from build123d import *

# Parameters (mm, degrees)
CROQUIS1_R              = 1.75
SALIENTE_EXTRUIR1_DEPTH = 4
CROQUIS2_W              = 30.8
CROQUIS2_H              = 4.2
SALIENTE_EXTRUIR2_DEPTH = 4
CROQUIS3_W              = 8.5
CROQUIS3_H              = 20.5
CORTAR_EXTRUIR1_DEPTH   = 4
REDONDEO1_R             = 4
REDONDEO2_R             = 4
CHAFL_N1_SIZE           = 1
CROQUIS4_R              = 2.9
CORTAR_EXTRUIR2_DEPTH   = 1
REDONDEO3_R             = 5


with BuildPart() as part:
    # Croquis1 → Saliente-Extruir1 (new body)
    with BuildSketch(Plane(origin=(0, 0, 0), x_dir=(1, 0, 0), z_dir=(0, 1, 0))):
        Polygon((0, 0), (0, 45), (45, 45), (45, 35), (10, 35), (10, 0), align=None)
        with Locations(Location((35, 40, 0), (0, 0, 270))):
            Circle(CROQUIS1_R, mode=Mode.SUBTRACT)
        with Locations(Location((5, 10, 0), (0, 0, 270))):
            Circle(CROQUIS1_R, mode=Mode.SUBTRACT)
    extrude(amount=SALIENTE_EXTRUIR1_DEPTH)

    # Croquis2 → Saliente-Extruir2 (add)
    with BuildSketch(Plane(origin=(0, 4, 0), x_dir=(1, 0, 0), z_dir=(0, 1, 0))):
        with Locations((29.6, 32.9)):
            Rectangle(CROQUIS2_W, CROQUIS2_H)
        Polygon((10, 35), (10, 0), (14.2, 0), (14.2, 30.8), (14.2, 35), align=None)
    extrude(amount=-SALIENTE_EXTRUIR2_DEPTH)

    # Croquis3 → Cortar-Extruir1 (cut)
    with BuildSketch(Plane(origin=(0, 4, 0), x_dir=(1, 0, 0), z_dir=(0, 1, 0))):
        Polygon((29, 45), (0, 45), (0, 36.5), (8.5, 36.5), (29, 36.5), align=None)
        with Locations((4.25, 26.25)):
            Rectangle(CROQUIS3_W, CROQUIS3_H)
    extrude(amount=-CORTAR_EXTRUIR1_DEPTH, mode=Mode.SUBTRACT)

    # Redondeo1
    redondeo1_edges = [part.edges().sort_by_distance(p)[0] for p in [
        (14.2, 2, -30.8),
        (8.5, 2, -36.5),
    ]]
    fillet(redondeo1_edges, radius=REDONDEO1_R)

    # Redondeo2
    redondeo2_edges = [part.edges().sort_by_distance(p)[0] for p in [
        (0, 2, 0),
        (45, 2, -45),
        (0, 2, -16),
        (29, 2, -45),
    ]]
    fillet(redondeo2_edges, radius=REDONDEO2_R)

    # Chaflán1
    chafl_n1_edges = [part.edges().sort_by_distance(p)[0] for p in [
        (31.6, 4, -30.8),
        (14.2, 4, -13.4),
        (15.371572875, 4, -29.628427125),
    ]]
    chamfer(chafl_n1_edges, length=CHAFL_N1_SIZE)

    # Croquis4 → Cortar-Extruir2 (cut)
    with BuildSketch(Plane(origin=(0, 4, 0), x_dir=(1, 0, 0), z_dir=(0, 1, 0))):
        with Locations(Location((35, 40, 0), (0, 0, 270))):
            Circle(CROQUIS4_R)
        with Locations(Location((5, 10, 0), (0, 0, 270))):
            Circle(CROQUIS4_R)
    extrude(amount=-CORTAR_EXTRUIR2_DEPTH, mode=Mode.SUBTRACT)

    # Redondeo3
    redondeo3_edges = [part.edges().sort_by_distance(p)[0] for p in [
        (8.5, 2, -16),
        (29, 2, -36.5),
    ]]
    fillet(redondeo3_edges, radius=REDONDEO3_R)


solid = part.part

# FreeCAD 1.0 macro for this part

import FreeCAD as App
import Part
import Sketcher
from FreeCAD import Vector


def edges_at(feature, points):
    """Names of the edges that pass closest to the given points."""
    edges = feature.Shape.Edges
    near = lambda p: min(range(len(edges)), key=lambda i: edges[i].distToShape(Part.Vertex(*p))[0])
    return sorted({f"Edge{near(p) + 1}" for p in points})


def add_polygon(sketch, points):
    """Adds a closed chain of lines whose ends are joined by coincident constraints."""
    first, n = sketch.GeometryCount, len(points)
    for a, b in zip(points, points[1:] + points[:1]):
        sketch.addGeometry(Part.LineSegment(App.Vector(*a, 0), App.Vector(*b, 0)), False)
    for i in range(n):
        sketch.addConstraint(Sketcher.Constraint("Coincident", first + i, 2, first + (i + 1) % n, 1))

doc = App.newDocument("Part")
params = doc.addObject("Spreadsheet::Sheet", "Params")
for row, (alias, value) in enumerate([
    ("sketch1_diameter", "3.5 mm"),
    ("sketch1_width", "10 mm"),
    ("sketch1_width2", "35 mm"),
    ("pad1_length", "4 mm"),
    ("sketch2_width", "35 mm"),
    ("sketch2_width2", "30.8 mm"),
    ("pad2_length", "4 mm"),
    ("sketch3_width", "29 mm"),
    ("sketch3_width2", "8.5 mm"),
    ("pocket1_length", "4 mm"),
    ("fillet_radius", "4 mm"),
    ("fillet2_radius", "4 mm"),
    ("chamfer_size", "1 mm"),
    ("sketch4_diameter", "5.8 mm"),
    ("pocket2_length", "1 mm"),
    ("fillet3_radius", "5 mm"),
], start=1):
    params.set(f"A{row}", alias)
    params.set(f"B{row}", "=" + value)
    params.setAlias(f"B{row}", alias)

body = doc.addObject("PartDesign::Body", "Body")

# Sketch on XZ plane
sketch1 = body.newObject("Sketcher::SketchObject", "Sketch")
sketch1.AttachmentSupport = (doc.getObject("XZ_Plane"), [""])
sketch1.MapMode = "FlatFace"
add_polygon(sketch1, [(0, -45), (0, 0), (10, 0), (10, -35), (45, -35), (45, -45)])  # lines 0-5
sketch1.addGeometry(Part.Circle(Vector(5, -10, 0), Vector(0, 0, 1), 1.8), False)  # 6
sketch1.addGeometry(Part.Circle(Vector(35, -40, 0), Vector(0, 0, 1), 1.8), False)  # 7
sketch1.addConstraint(Sketcher.Constraint("Vertical", 0))
sketch1.addConstraint(Sketcher.Constraint("Horizontal", 1))
sketch1.addConstraint(Sketcher.Constraint("Vertical", 2))
sketch1.addConstraint(Sketcher.Constraint("Horizontal", 3))
sketch1.addConstraint(Sketcher.Constraint("Vertical", 4))
sketch1.addConstraint(Sketcher.Constraint("Horizontal", 5))
sketch1.addConstraint(Sketcher.Constraint("Coincident", 0, 2, -1, 1))
sketch1.addConstraint(Sketcher.Constraint("Equal", 6, 7))
sketch1.addConstraint(Sketcher.Constraint("Equal", 5, 0))
sketch1.addConstraint(Sketcher.Constraint("Equal", 3, 2))
sketch1.addConstraint(Sketcher.Constraint("Diameter", 6, 3.5))
sketch1.addConstraint(Sketcher.Constraint("DistanceX", 1, 1, 1, 2, 10.0))
sketch1.addConstraint(Sketcher.Constraint("DistanceX", 3, 1, 3, 2, 35.0))
sketch1.addConstraint(Sketcher.Constraint("DistanceX", -1, 1, 6, 3, 5.0))
sketch1.addConstraint(Sketcher.Constraint("DistanceY", 6, 3, -1, 1, 10.0))
sketch1.addConstraint(Sketcher.Constraint("DistanceX", -1, 1, 7, 3, 35.0))
sketch1.addConstraint(Sketcher.Constraint("DistanceY", 7, 3, -1, 1, 40.0))
sketch1.setExpression("Constraints[16]", "Params.sketch1_diameter")
sketch1.setExpression("Constraints[17]", "Params.sketch1_width")
sketch1.setExpression("Constraints[18]", "Params.sketch1_width2")
pad1 = body.newObject("PartDesign::Pad", "Pad")
pad1.Profile = sketch1
pad1.setExpression("Length", "Params.pad1_length")
pad1.Reversed = True

# Sketch on XZ plane
sketch2 = body.newObject("Sketcher::SketchObject", "Sketch001")
sketch2.AttachmentSupport = (doc.getObject("XZ_Plane"), [""])
sketch2.MapMode = "FlatFace"
sketch2.AttachmentOffset = App.Placement(Vector(0, 0, -4), App.Rotation())
add_polygon(sketch2, [(14.2, -30.8), (45, -30.8), (45, -35), (10, -35), (10, 0), (14.2, 0)])  # lines 0-5
sketch2.addConstraint(Sketcher.Constraint("Horizontal", 0))
sketch2.addConstraint(Sketcher.Constraint("Vertical", 1))
sketch2.addConstraint(Sketcher.Constraint("Horizontal", 2))
sketch2.addConstraint(Sketcher.Constraint("Vertical", 3))
sketch2.addConstraint(Sketcher.Constraint("Horizontal", 4))
sketch2.addConstraint(Sketcher.Constraint("Vertical", 5))
sketch2.addConstraint(Sketcher.Constraint("PointOnObject", 3, 2, -1))
sketch2.addConstraint(Sketcher.Constraint("Equal", 4, 1))
sketch2.addConstraint(Sketcher.Constraint("Equal", 2, 3))
sketch2.addConstraint(Sketcher.Constraint("DistanceX", 2, 2, 2, 1, 35.0))
sketch2.addConstraint(Sketcher.Constraint("DistanceX", 0, 1, 0, 2, 30.8))
sketch2.addConstraint(Sketcher.Constraint("DistanceX", -1, 1, 0, 2, 45.0))
sketch2.setExpression("Constraints[15]", "Params.sketch2_width")
sketch2.setExpression("Constraints[16]", "Params.sketch2_width2")
pad2 = body.newObject("PartDesign::Pad", "Pad001")
pad2.Profile = sketch2
pad2.setExpression("Length", "Params.pad2_length")

# Sketch on XZ plane
sketch3 = body.newObject("Sketcher::SketchObject", "Sketch002")
sketch3.AttachmentSupport = (doc.getObject("XZ_Plane"), [""])
sketch3.MapMode = "FlatFace"
sketch3.AttachmentOffset = App.Placement(Vector(0, 0, -4), App.Rotation())
add_polygon(sketch3, [(29, -45), (0, -45), (0, -16), (8, -16), (8, -36), (29, -36)])  # lines 0-5
sketch3.addConstraint(Sketcher.Constraint("Horizontal", 0))
sketch3.addConstraint(Sketcher.Constraint("Vertical", 1))
sketch3.addConstraint(Sketcher.Constraint("Horizontal", 2))
sketch3.addConstraint(Sketcher.Constraint("Vertical", 3))
sketch3.addConstraint(Sketcher.Constraint("Horizontal", 4))
sketch3.addConstraint(Sketcher.Constraint("Vertical", 5))
sketch3.addConstraint(Sketcher.Constraint("PointOnObject", 0, 2, -2))
sketch3.addConstraint(Sketcher.Constraint("Equal", 0, 1))
sketch3.addConstraint(Sketcher.Constraint("Equal", 4, 3))
sketch3.addConstraint(Sketcher.Constraint("DistanceX", 0, 2, 0, 1, 29.0))
sketch3.addConstraint(Sketcher.Constraint("DistanceX", 2, 1, 2, 2, 8.5))
sketch3.addConstraint(Sketcher.Constraint("DistanceY", 0, 2, -1, 1, 45.0))
sketch3.setExpression("Constraints[15]", "Params.sketch3_width")
sketch3.setExpression("Constraints[16]", "Params.sketch3_width2")
pocket1 = body.newObject("PartDesign::Pocket", "Pocket")
pocket1.Profile = sketch3
pocket1.setExpression("Length", "Params.pocket1_length")
pocket1.Reversed = True
doc.recompute()

fillet = body.newObject("PartDesign::Fillet", "Fillet")
fillet.Base = (pocket1, edges_at(pocket1, [(14.2, 2, -30.8), (8.5, 2, -36.5)]))
fillet.setExpression("Radius", "Params.fillet_radius")
doc.recompute()

fillet2 = body.newObject("PartDesign::Fillet", "Fillet001")
fillet2.Base = (fillet, edges_at(fillet, [
    (0, 2, 0),
    (45, 2, -45),
    (0, 2, -16),
    (29, 2, -45),
]))
fillet2.setExpression("Radius", "Params.fillet2_radius")
doc.recompute()

chamfer = body.newObject("PartDesign::Chamfer", "Chamfer")
chamfer.Base = (fillet2, edges_at(fillet2, [(31.6, 4, -30.8), (14.2, 4, -13.4), (15.372, 4, -29.628)]))
chamfer.setExpression("Size", "Params.chamfer_size")

# Sketch on XZ plane
sketch4 = body.newObject("Sketcher::SketchObject", "Sketch003")
sketch4.AttachmentSupport = (doc.getObject("XZ_Plane"), [""])
sketch4.MapMode = "FlatFace"
sketch4.AttachmentOffset = App.Placement(Vector(0, 0, -4), App.Rotation())
sketch4.addGeometry(Part.Circle(Vector(35, -40, 0), Vector(0, 0, 1), 2.9), False)
sketch4.addGeometry(Part.Circle(Vector(5, -10, 0), Vector(0, 0, 1), 2.9), False)
sketch4.addConstraint(Sketcher.Constraint("Equal", 0, 1))
sketch4.addConstraint(Sketcher.Constraint("Diameter", 0, 5.8))
sketch4.addConstraint(Sketcher.Constraint("DistanceX", -1, 1, 0, 3, 35.0))
sketch4.addConstraint(Sketcher.Constraint("DistanceY", 0, 3, -1, 1, 40.0))
sketch4.addConstraint(Sketcher.Constraint("DistanceX", -1, 1, 1, 3, 5.0))
sketch4.addConstraint(Sketcher.Constraint("DistanceY", 1, 3, -1, 1, 10.0))
sketch4.setExpression("Constraints[1]", "Params.sketch4_diameter")
pocket2 = body.newObject("PartDesign::Pocket", "Pocket001")
pocket2.Profile = sketch4
pocket2.setExpression("Length", "Params.pocket2_length")
pocket2.Reversed = True
doc.recompute()

fillet3 = body.newObject("PartDesign::Fillet", "Fillet002")
fillet3.Base = (pocket2, edges_at(pocket2, [(8.5, 2, -16), (29, 2, -36.5)]))
fillet3.setExpression("Radius", "Params.fillet3_radius")

doc.recompute()
